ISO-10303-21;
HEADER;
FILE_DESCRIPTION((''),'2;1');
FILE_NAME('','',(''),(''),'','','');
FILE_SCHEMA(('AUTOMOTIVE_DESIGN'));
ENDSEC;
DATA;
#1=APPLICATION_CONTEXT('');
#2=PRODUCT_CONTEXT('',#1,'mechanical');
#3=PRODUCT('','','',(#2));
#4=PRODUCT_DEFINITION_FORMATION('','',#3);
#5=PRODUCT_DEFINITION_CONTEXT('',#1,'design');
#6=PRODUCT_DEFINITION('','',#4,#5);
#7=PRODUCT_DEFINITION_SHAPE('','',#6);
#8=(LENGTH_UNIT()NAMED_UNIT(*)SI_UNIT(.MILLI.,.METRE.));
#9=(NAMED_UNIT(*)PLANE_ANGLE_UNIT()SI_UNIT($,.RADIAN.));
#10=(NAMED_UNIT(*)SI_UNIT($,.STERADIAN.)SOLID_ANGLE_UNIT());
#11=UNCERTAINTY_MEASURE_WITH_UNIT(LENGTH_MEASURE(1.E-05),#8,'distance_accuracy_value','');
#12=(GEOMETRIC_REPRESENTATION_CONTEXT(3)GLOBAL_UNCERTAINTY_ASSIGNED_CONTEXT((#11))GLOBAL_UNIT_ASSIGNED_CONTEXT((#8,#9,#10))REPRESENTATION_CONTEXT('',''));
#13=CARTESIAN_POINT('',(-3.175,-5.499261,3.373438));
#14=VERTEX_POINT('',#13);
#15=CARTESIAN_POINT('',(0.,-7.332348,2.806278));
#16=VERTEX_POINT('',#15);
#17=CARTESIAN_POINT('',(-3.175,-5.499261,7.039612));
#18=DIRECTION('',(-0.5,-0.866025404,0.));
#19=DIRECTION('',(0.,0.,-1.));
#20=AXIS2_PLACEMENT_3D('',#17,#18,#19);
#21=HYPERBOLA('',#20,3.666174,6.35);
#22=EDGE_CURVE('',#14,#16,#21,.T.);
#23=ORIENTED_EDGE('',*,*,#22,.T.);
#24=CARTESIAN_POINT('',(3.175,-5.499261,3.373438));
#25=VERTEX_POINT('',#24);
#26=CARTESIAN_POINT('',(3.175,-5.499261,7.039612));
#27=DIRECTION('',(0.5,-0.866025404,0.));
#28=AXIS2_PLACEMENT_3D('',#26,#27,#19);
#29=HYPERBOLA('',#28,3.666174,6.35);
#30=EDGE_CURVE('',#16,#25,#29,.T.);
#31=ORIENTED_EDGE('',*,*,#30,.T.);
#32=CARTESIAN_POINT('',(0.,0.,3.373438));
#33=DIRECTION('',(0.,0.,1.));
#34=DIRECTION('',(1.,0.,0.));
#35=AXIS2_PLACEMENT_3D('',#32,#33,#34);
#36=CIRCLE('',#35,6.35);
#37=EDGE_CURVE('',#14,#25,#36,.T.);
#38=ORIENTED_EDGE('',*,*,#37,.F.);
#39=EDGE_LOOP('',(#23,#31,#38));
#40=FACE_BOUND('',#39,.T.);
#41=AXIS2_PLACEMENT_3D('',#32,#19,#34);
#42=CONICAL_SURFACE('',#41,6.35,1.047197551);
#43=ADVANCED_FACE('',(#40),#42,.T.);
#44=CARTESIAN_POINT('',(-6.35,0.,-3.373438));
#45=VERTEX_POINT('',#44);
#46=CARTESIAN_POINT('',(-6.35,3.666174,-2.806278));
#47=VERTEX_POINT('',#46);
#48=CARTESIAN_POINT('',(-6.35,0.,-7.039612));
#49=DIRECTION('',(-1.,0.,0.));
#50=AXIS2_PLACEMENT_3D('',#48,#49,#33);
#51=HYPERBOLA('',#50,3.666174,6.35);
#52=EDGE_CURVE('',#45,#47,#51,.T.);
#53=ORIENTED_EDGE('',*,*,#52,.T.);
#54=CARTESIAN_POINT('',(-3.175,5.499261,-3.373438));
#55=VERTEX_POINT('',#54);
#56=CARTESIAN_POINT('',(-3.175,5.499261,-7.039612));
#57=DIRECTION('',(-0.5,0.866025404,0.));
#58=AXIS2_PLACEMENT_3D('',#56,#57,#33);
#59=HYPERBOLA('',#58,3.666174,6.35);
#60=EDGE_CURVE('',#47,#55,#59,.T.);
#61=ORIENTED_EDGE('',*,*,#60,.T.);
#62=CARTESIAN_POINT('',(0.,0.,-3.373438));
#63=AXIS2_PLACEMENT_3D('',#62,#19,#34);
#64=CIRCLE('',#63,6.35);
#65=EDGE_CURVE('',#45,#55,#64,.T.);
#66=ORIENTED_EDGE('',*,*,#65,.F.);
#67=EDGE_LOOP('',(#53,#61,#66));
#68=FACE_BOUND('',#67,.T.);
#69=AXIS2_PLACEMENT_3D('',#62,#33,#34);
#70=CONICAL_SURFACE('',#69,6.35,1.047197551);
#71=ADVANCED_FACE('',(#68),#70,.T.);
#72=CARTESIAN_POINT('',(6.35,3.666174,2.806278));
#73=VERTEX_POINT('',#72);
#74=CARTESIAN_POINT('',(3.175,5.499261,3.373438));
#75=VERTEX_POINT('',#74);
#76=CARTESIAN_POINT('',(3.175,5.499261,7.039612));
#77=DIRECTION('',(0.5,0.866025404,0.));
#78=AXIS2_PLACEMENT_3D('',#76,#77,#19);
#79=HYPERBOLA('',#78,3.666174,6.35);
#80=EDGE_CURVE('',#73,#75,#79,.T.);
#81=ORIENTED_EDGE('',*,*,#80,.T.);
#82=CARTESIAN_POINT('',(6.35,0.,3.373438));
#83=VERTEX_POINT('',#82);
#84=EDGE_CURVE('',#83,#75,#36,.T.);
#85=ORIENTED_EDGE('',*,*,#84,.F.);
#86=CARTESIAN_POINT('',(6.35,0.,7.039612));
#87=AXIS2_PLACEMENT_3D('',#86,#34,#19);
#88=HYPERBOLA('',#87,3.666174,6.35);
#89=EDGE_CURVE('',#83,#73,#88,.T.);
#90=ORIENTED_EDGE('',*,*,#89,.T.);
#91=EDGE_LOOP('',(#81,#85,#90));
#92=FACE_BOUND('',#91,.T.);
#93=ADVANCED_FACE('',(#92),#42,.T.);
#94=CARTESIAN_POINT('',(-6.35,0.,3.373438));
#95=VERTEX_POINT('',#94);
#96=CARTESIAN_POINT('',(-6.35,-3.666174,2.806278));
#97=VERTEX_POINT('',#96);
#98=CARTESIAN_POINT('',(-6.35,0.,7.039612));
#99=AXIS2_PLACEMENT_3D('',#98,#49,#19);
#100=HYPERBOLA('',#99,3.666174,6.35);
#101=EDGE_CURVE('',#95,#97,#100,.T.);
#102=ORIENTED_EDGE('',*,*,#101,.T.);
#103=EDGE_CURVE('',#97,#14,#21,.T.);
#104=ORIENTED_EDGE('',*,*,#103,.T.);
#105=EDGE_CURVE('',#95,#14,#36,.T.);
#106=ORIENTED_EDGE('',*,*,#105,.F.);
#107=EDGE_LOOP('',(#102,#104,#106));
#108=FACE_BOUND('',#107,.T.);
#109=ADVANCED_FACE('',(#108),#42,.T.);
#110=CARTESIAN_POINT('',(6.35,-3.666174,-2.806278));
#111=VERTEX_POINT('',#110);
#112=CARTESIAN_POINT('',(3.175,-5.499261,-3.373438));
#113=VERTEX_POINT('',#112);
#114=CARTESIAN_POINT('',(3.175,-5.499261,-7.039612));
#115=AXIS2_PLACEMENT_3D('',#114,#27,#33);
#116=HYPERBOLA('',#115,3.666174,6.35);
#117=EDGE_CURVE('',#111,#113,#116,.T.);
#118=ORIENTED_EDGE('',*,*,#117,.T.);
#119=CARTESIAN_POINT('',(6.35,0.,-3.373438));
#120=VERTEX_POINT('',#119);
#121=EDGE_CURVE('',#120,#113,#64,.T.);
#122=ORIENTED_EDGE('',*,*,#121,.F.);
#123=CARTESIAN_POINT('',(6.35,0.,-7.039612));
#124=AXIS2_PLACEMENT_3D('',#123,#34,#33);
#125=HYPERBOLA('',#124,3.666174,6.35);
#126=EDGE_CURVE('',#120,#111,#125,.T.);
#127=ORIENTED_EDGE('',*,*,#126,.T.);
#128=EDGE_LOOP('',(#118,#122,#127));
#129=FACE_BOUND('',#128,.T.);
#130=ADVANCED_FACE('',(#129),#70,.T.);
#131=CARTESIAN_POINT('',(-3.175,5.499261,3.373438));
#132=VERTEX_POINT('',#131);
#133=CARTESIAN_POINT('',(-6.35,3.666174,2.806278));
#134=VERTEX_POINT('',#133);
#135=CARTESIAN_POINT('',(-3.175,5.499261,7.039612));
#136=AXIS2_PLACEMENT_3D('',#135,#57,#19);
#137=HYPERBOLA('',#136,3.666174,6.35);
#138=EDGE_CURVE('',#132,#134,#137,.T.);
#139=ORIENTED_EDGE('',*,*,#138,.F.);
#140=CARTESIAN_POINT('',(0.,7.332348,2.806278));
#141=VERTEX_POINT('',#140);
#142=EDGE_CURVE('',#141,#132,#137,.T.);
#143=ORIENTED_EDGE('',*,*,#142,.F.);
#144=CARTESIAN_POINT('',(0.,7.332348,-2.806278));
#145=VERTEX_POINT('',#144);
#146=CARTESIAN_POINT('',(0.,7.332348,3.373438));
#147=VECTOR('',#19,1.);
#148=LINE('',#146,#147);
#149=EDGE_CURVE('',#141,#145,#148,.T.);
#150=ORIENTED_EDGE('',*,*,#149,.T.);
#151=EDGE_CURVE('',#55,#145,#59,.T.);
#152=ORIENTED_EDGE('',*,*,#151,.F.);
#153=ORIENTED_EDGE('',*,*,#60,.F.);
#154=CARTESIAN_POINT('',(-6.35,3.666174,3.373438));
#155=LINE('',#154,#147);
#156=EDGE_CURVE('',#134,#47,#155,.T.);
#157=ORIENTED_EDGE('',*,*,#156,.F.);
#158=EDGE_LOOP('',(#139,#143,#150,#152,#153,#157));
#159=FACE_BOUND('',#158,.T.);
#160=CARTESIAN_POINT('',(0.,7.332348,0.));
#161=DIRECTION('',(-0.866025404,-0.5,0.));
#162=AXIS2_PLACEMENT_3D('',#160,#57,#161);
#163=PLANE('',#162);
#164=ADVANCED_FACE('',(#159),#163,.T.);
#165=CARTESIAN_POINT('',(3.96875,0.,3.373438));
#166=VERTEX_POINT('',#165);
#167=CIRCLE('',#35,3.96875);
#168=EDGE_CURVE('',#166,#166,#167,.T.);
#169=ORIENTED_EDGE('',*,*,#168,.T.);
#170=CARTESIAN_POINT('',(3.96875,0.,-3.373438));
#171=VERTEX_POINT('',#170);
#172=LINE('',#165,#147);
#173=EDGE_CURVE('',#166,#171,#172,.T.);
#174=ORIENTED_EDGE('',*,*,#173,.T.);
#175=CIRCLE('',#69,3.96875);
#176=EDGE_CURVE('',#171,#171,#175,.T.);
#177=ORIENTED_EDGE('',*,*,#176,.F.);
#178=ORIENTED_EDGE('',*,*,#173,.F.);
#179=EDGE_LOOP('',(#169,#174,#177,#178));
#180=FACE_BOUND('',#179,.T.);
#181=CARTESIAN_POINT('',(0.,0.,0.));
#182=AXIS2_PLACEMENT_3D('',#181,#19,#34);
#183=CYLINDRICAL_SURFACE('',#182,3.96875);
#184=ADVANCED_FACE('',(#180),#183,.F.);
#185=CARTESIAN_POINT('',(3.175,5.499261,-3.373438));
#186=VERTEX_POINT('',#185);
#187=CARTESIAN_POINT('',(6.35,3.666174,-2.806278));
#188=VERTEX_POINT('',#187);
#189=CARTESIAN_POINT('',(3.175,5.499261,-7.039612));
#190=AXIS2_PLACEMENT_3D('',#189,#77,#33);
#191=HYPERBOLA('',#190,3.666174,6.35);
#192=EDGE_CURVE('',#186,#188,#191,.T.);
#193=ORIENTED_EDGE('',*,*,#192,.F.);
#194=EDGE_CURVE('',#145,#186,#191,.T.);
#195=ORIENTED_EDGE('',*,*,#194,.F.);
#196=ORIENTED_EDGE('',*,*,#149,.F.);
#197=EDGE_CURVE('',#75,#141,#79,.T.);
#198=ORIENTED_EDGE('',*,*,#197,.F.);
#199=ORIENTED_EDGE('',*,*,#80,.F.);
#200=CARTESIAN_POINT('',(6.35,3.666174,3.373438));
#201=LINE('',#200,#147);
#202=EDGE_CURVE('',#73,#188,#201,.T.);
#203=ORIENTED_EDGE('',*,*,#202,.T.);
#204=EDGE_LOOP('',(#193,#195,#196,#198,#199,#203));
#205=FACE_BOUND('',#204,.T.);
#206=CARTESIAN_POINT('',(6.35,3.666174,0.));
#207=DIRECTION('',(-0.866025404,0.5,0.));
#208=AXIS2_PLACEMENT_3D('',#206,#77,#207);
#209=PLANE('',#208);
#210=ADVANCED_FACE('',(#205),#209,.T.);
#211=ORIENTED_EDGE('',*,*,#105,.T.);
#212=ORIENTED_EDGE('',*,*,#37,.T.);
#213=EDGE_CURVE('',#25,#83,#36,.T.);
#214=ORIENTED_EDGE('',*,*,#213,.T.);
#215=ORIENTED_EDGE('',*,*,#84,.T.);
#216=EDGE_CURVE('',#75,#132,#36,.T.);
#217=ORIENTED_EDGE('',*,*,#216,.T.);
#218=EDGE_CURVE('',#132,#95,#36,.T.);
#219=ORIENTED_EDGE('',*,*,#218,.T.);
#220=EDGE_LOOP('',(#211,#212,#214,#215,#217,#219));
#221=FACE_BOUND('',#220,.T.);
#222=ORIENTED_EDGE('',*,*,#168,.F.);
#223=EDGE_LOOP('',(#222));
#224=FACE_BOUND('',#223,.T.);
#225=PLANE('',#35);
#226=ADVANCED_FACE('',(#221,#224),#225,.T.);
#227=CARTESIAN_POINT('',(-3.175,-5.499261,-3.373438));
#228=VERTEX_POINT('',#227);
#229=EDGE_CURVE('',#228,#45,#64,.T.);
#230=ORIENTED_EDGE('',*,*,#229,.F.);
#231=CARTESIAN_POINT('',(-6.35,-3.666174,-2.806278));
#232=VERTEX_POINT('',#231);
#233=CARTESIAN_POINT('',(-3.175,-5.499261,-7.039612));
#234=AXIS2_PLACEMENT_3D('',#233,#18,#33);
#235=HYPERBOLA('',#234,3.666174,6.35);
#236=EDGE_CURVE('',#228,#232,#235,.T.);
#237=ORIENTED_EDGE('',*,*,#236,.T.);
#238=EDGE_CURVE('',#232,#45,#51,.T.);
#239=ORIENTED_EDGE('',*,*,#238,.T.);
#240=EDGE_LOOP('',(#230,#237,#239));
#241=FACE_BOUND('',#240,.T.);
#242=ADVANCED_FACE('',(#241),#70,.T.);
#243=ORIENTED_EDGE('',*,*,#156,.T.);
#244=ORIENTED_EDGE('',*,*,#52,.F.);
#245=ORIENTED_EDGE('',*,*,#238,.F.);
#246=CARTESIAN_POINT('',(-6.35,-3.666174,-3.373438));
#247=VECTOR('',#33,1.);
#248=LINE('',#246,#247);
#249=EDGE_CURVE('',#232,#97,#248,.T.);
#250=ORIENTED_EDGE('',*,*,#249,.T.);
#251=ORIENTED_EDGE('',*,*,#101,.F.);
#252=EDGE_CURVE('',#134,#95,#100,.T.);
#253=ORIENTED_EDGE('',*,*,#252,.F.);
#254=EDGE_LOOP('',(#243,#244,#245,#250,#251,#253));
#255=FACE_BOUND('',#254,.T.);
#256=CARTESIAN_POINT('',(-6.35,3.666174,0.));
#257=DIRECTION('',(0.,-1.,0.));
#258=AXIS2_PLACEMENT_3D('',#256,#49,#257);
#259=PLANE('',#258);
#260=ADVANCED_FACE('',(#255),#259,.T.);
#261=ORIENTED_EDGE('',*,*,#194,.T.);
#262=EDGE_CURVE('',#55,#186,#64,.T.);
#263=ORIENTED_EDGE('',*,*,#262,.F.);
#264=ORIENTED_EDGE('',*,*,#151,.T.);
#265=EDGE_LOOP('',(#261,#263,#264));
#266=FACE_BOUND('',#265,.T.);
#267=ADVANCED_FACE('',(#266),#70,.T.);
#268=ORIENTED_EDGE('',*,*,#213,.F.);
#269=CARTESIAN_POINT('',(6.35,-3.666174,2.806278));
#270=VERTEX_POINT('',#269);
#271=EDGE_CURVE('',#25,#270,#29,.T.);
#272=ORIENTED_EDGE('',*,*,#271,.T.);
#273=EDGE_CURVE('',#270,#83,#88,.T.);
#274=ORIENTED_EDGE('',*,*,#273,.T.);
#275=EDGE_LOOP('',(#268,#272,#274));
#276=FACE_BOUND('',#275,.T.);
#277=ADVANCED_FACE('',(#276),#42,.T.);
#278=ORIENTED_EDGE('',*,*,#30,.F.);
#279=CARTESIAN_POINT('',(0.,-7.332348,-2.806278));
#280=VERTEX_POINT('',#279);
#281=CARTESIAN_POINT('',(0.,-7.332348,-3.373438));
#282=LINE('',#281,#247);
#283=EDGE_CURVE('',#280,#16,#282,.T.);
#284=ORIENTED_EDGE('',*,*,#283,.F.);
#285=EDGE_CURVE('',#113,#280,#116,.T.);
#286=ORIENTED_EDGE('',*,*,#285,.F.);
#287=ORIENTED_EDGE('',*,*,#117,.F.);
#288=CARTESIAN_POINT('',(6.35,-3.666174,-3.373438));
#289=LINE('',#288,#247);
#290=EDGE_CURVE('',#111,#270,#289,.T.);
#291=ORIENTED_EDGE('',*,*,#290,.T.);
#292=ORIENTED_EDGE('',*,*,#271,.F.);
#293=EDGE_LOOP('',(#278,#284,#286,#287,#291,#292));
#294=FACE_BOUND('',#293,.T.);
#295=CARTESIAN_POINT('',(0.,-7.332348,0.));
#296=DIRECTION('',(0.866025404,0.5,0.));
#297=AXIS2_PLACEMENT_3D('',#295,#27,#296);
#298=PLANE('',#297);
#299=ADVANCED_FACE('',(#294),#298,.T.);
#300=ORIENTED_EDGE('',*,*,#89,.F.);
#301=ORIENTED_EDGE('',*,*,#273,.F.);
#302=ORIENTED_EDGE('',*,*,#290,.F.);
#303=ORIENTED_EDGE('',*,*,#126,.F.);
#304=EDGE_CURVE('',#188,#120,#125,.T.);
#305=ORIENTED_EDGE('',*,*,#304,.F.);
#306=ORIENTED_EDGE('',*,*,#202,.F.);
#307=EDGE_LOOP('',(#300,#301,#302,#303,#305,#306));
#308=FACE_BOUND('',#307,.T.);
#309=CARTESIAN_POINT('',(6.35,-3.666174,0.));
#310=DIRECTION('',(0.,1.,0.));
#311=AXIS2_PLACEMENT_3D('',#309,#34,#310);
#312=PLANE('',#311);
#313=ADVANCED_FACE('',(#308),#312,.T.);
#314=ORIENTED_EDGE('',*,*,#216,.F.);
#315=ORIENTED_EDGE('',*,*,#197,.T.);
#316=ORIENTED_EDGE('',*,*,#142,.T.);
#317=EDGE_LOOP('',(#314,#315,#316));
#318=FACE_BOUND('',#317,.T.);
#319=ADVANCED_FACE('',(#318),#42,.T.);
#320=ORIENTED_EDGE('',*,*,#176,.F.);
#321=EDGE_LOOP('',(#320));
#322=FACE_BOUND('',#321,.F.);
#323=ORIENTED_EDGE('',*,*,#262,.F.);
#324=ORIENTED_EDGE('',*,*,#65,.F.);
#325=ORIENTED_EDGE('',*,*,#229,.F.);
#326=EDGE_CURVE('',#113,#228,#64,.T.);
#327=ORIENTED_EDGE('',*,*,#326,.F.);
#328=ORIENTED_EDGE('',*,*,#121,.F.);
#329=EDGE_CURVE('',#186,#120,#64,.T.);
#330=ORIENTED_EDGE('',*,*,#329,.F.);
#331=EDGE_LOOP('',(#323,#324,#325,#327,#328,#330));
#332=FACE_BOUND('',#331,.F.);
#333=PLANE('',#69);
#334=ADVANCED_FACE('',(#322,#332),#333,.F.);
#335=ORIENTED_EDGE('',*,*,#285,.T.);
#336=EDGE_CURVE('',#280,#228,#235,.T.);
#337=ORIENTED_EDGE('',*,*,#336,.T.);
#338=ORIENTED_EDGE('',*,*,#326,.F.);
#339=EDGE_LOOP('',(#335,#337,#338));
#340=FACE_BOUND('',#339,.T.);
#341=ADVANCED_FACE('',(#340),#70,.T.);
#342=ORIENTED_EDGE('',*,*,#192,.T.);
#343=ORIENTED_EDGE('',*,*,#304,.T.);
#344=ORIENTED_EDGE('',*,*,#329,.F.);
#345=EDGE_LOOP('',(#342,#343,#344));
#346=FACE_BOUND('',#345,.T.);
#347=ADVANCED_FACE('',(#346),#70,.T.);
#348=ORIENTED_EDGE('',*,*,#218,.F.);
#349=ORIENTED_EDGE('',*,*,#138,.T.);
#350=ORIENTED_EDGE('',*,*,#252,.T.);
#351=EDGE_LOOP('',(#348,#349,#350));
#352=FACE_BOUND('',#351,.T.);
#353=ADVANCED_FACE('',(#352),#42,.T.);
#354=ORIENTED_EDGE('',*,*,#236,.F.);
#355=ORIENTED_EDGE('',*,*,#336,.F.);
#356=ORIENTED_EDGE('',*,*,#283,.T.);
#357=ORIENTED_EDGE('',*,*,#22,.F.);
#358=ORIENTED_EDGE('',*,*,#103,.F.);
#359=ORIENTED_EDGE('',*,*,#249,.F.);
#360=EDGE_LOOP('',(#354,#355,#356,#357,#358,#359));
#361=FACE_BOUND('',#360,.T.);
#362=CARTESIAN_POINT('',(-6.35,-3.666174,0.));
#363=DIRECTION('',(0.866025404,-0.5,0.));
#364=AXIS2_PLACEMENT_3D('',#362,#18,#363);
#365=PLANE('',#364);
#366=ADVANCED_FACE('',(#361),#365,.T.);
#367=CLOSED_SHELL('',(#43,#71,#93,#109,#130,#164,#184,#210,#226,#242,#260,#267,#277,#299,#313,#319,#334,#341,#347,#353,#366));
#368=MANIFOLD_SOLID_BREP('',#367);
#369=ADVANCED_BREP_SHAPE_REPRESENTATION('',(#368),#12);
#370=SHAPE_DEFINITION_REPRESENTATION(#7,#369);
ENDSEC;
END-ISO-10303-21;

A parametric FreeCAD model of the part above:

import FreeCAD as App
import Part
import Sketcher
from FreeCAD import Vector
Q = App.Units.Quantity


def faces_at(feature, points):
    """Names of the faces that lie closest to the given points."""
    faces = feature.Shape.Faces
    near = lambda p: min(range(len(faces)), key=lambda i: faces[i].distToShape(Part.Vertex(*p))[0])
    return sorted({f"Face{near(p) + 1}" for p in points})

doc = App.newDocument("Part")
body = doc.addObject("PartDesign::Body", "Body")

sketch1 = body.newObject("Sketcher::SketchObject", "Sketch")
sketch1.AttachmentSupport = (doc.getObject("XY_Plane"), [""])
sketch1.MapMode = "FlatFace"
sketch1.addGeometry([
    Part.LineSegment(Vector(-6.3, 3.7, 0), Vector(-6.3, -3.7, 0)),
    Part.LineSegment(Vector(-6.3, -3.7, 0), Vector(0, -7.3, 0)),
    Part.LineSegment(Vector(0, -7.3, 0), Vector(6.3, -3.7, 0)),
    Part.LineSegment(Vector(6.3, -3.7, 0), Vector(6.3, 3.7, 0)),
    Part.LineSegment(Vector(6.3, 3.7, 0), Vector(0, 7.3, 0)),
    Part.LineSegment(Vector(0, 7.3, 0), Vector(-6.3, 3.7, 0)),
    Part.Circle(Vector(0, 0, 0), Vector(0, 0, 1), 4),
], False)
sketch1.addConstraint([
    Sketcher.Constraint("Coincident", 0, 2, 1, 1),
    Sketcher.Constraint("Coincident", 1, 2, 2, 1),
    Sketcher.Constraint("Coincident", 2, 2, 3, 1),
    Sketcher.Constraint("Coincident", 3, 2, 4, 1),
    Sketcher.Constraint("Coincident", 4, 2, 5, 1),
    Sketcher.Constraint("Coincident", 5, 2, 0, 1),
    Sketcher.Constraint("Vertical", 0),
    Sketcher.Constraint("Vertical", 3),
    Sketcher.Constraint("Coincident", 6, 3, -1, 1),
    Sketcher.Constraint("Symmetric", 0, 2, 3, 2, -1, 1),
    Sketcher.Constraint("Symmetric", 1, 2, 4, 2, -1, 1),
    Sketcher.Constraint("PointOnObject", 1, 2, -2),
    Sketcher.Constraint("Parallel", 2, 5),
    Sketcher.Constraint("Horizontal", 0, 2, 2, 2),
    Sketcher.Constraint("Diameter", 6, Q("0.3125 in")),
    Sketcher.Constraint("Angle", 1, Q("-30 deg")),
    Sketcher.Constraint("DistanceX", 0, 2, 2, 2, Q("0.5 in")),
    Sketcher.Constraint("DistanceY", 0, 2, 0, 1, 7.332348),
])
pad1 = body.newObject("PartDesign::Pad", "Pad")
pad1.Profile = sketch1
pad1.Length = Q("0.265625 in")
pad1.Midplane = True
body2 = doc.addObject("PartDesign::Body", "Body001")

sketch2 = body2.newObject("Sketcher::SketchObject", "Sketch001")
sketch2.AttachmentSupport = (doc.getObject("XY_Plane001"), [""])
sketch2.MapMode = "FlatFace"
sketch2.AttachmentOffset = App.Placement(Vector(0, 0, 3.373438), App.Rotation())
sketch2.addGeometry([
    Part.LineSegment(Vector(-53, 54, 0), Vector(-53, -54, 0)),
    Part.LineSegment(Vector(-53, -54, 0), Vector(53, -54, 0)),
    Part.LineSegment(Vector(53, -54, 0), Vector(53, 54, 0)),
    Part.LineSegment(Vector(53, 54, 0), Vector(-53, 54, 0)),
    Part.Circle(Vector(0, 0, 0), Vector(0, 0, 1), 6),
], False)
sketch2.addConstraint([
    Sketcher.Constraint("Coincident", 0, 2, 1, 1),
    Sketcher.Constraint("Coincident", 1, 2, 2, 1),
    Sketcher.Constraint("Coincident", 2, 2, 3, 1),
    Sketcher.Constraint("Coincident", 3, 2, 0, 1),
    Sketcher.Constraint("Vertical", 0),
    Sketcher.Constraint("Horizontal", 1),
    Sketcher.Constraint("Vertical", 2),
    Sketcher.Constraint("Horizontal", 3),
    Sketcher.Constraint("Coincident", 4, 3, -1, 1),
    Sketcher.Constraint("Symmetric", 0, 2, 2, 2, -1, 1),
    Sketcher.Constraint("Diameter", 4, Q("0.5 in")),
    Sketcher.Constraint("DistanceX", 1, 1, 1, 2, 106.796),
    Sketcher.Constraint("DistanceY", 0, 2, 0, 1, 108.76),
])
pad2 = body2.newObject("PartDesign::Pad", "Pad001")
pad2.Profile = sketch2
pad2.Length = Q("1 in")
pad2.Reversed = True
doc.recompute()

datumplane = body2.newObject("PartDesign::Plane", "DatumPlane")
datumplane.AttachmentSupport = (doc.getObject("XY_Plane001"), [""])
datumplane.MapMode = "FlatFace"
datumplane.AttachmentOffset = App.Placement(Vector(0, 0, 3.373438), App.Rotation())
draft = body2.newObject("PartDesign::Draft", "Draft")
draft.Base = (pad2, faces_at(pad2, [
    (0, -54.38, -9.327),
    (53.398, 0, -9.327),
    (0, 54.38, -9.327),
    (-53.398, 0, -9.327),
    (-6.35, 0, -9.327),
]))
draft.NeutralPlane = (datumplane, [""])
draft.Angle = 60
draft.Reversed = True
doc.recompute()

boolean = body.newObject("PartDesign::Boolean", "Boolean")
boolean.Type = "Cut"
boolean.addObjects([body2])
body3 = doc.addObject("PartDesign::Body", "Body002")

sketch3 = body3.newObject("Sketcher::SketchObject", "Sketch002")
sketch3.AttachmentSupport = (doc.getObject("XY_Plane002"), [""])
sketch3.MapMode = "FlatFace"
sketch3.AttachmentOffset = App.Placement(Vector(0, 0, -3.373438), App.Rotation())
sketch3.addGeometry([
    Part.LineSegment(Vector(-53, -54, 0), Vector(-53, 54, 0)),
    Part.LineSegment(Vector(-53, 54, 0), Vector(53, 54, 0)),
    Part.LineSegment(Vector(53, 54, 0), Vector(53, -54, 0)),
    Part.LineSegment(Vector(53, -54, 0), Vector(-53, -54, 0)),
    Part.Circle(Vector(0, 0, 0), Vector(0, 0, 1), 6),
], False)
sketch3.addConstraint([
    Sketcher.Constraint("Coincident", 0, 2, 1, 1),
    Sketcher.Constraint("Coincident", 1, 2, 2, 1),
    Sketcher.Constraint("Coincident", 2, 2, 3, 1),
    Sketcher.Constraint("Coincident", 3, 2, 0, 1),
    Sketcher.Constraint("Vertical", 0),
    Sketcher.Constraint("Horizontal", 1),
    Sketcher.Constraint("Vertical", 2),
    Sketcher.Constraint("Horizontal", 3),
    Sketcher.Constraint("Coincident", 4, 3, -1, 1),
    Sketcher.Constraint("Symmetric", 0, 2, 2, 2, -1, 1),
    Sketcher.Constraint("Diameter", 4, Q("0.5 in")),
    Sketcher.Constraint("DistanceX", 1, 1, 1, 2, 106.796),
    Sketcher.Constraint("DistanceY", 0, 1, 0, 2, 108.76),
])
pad3 = body3.newObject("PartDesign::Pad", "Pad002")
pad3.Profile = sketch3
pad3.Length = Q("1 in")
doc.recompute()

datumplane2 = body3.newObject("PartDesign::Plane", "DatumPlane001")
datumplane2.AttachmentSupport = (doc.getObject("XY_Plane002"), [""])
datumplane2.MapMode = "FlatFace"
datumplane2.AttachmentOffset = App.Placement(Vector(0, 0, -3.373438), App.Rotation())
draft2 = body3.newObject("PartDesign::Draft", "Draft001")
draft2.Base = (pad3, faces_at(pad3, [
    (0, -54.38, 9.327),
    (53.398, 0, 9.327),
    (0, 54.38, 9.327),
    (-53.398, 0, 9.327),
    (-6.35, 0, 9.327),
]))
draft2.NeutralPlane = (datumplane2, [""])
draft2.Angle = 60
draft2.Reversed = False
doc.recompute()

boolean2 = body.newObject("PartDesign::Boolean", "Boolean001")
boolean2.Type = "Cut"
boolean2.addObjects([body3])

doc.recompute()
